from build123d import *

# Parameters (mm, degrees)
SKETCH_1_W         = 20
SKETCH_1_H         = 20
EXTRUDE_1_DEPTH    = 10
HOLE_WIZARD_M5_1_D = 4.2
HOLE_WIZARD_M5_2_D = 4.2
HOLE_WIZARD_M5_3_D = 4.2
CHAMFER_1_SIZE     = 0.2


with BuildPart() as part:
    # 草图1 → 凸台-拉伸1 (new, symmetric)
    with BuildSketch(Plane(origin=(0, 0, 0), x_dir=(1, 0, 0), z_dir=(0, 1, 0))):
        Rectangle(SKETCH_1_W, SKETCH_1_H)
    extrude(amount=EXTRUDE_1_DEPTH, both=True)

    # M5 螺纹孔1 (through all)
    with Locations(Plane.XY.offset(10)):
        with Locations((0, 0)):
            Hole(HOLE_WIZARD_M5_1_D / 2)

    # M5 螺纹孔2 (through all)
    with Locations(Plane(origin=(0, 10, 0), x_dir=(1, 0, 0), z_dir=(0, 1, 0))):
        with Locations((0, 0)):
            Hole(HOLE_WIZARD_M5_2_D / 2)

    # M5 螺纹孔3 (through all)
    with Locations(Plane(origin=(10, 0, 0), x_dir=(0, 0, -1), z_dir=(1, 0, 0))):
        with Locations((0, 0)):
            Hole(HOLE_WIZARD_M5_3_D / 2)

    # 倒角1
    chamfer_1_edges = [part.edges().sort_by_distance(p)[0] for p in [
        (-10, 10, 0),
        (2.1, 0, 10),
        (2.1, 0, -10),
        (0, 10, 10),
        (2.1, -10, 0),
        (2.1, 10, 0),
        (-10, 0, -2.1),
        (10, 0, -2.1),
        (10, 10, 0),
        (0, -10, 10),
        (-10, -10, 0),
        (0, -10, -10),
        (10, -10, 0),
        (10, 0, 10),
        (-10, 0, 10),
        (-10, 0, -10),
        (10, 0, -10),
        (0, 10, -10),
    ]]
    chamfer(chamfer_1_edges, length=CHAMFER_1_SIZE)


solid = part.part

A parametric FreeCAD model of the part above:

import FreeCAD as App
import Part
import Sketcher

V = App.Vector


def edges_at(feature, points):
    """Names of the edges that pass closest to the given points."""
    edges = feature.Shape.Edges
    near = lambda p: min(range(len(edges)), key=lambda i: edges[i].distToShape(Part.Vertex(*p))[0])
    return sorted({f"Edge{near(p) + 1}" for p in points})

doc = App.newDocument("Part")
body = doc.addObject("PartDesign::Body", "Body")

# Sketch on XZ plane
sketch1 = body.newObject("Sketcher::SketchObject", "Sketch")
sketch1.AttachmentSupport = (doc.getObject("XZ_Plane"), [""])
sketch1.MapMode = "FlatFace"
sketch1.addGeometry([
    Part.LineSegment(V(-10, -10, 0), V(-10, 10, 0)),
    Part.LineSegment(V(-10, 10, 0), V(10, 10, 0)),
    Part.LineSegment(V(10, 10, 0), V(10, -10, 0)),
    Part.LineSegment(V(10, -10, 0), V(-10, -10, 0)),
], False)
sketch1.addConstraint([
    Sketcher.Constraint("Coincident", 0, 2, 1, 1),
    Sketcher.Constraint("Coincident", 1, 2, 2, 1),
    Sketcher.Constraint("Coincident", 2, 2, 3, 1),
    Sketcher.Constraint("Coincident", 3, 2, 0, 1),
    Sketcher.Constraint("Vertical", 0),
    Sketcher.Constraint("Horizontal", 1),
    Sketcher.Constraint("Vertical", 2),
    Sketcher.Constraint("Horizontal", 3),
    Sketcher.Constraint("Symmetric", 0, 2, 2, 2, -1, 1),
    Sketcher.Constraint("Equal", 3, 0),
    Sketcher.Constraint("DistanceX", 1, 1, 1, 2, 20.0),
])
pad1 = body.newObject("PartDesign::Pad", "Pad")
pad1.Profile = sketch1
pad1.Length = 20
pad1.Midplane = True

# Sketch on XY plane
sketch2 = body.newObject("Sketcher::SketchObject", "Sketch001")
sketch2.AttachmentSupport = (doc.getObject("XY_Plane"), [""])
sketch2.MapMode = "FlatFace"
sketch2.AttachmentOffset = App.Placement(V(0, 0, 10), App.Rotation())
sketch2.addGeometry(Part.Circle(V(0, 0, 0), V(0, 0, 1), 2.1), False)
sketch2.addConstraint([
    Sketcher.Constraint("Coincident", 0, 3, -1, 1),
    Sketcher.Constraint("Diameter", 0, 4.2),
])
doc.recompute()
hole = body.newObject("PartDesign::Hole", "Hole")
hole.Profile = sketch2
hole.ThreadType = "None"
hole.Diameter = 4.2
hole.DepthType = "ThroughAll"

# Sketch on XZ plane
sketch3 = body.newObject("Sketcher::SketchObject", "Sketch002")
sketch3.AttachmentSupport = (doc.getObject("XZ_Plane"), [""])
sketch3.MapMode = "FlatFace"
sketch3.AttachmentOffset = App.Placement(V(0, 0, -10), App.Rotation())
sketch3.addGeometry(Part.Circle(V(0, 0, 0), V(0, 0, 1), 2.1), False)
sketch3.addConstraint([
    Sketcher.Constraint("Coincident", 0, 3, -1, 1),
    Sketcher.Constraint("Diameter", 0, 4.2),
])
doc.recompute()
hole2 = body.newObject("PartDesign::Hole", "Hole001")
hole2.Profile = sketch3
hole2.ThreadType = "None"
hole2.Diameter = 4.2
hole2.DepthType = "ThroughAll"
hole2.Reversed = True

# Sketch on YZ plane
sketch4 = body.newObject("Sketcher::SketchObject", "Sketch003")
sketch4.AttachmentSupport = (doc.getObject("YZ_Plane"), [""])
sketch4.MapMode = "FlatFace"
sketch4.AttachmentOffset = App.Placement(V(0, 0, 10), App.Rotation())
sketch4.addGeometry(Part.Circle(V(0, 0, 0), V(0, 0, 1), 2.1), False)
sketch4.addConstraint([
    Sketcher.Constraint("Coincident", 0, 3, -1, 1),
    Sketcher.Constraint("Diameter", 0, 4.2),
])
doc.recompute()
hole3 = body.newObject("PartDesign::Hole", "Hole002")
hole3.Profile = sketch4
hole3.ThreadType = "None"
hole3.Diameter = 4.2
hole3.DepthType = "ThroughAll"
doc.recompute()

chamfer = body.newObject("PartDesign::Chamfer", "Chamfer")
chamfer.Base = (hole3, edges_at(hole3, [
    (-10, 10, 0),
    (2.1, 0, 10),
    (2.1, 0, -10),
    (0, 10, 10),
    (2.1, -10, 0),
    (2.1, 10, 0),
    (-10, 0, -2.1),
    (10, 0, -2.1),
    (10, 10, 0),
    (0, -10, 10),
    (-10, -10, 0),
    (0, -10, -10),
    (10, -10, 0),
    (10, 0, 10),
    (-10, 0, 10),
    (-10, 0, -10),
    (10, 0, -10),
    (0, 10, -10),
]))
chamfer.Size = 0.2

doc.recompute()
